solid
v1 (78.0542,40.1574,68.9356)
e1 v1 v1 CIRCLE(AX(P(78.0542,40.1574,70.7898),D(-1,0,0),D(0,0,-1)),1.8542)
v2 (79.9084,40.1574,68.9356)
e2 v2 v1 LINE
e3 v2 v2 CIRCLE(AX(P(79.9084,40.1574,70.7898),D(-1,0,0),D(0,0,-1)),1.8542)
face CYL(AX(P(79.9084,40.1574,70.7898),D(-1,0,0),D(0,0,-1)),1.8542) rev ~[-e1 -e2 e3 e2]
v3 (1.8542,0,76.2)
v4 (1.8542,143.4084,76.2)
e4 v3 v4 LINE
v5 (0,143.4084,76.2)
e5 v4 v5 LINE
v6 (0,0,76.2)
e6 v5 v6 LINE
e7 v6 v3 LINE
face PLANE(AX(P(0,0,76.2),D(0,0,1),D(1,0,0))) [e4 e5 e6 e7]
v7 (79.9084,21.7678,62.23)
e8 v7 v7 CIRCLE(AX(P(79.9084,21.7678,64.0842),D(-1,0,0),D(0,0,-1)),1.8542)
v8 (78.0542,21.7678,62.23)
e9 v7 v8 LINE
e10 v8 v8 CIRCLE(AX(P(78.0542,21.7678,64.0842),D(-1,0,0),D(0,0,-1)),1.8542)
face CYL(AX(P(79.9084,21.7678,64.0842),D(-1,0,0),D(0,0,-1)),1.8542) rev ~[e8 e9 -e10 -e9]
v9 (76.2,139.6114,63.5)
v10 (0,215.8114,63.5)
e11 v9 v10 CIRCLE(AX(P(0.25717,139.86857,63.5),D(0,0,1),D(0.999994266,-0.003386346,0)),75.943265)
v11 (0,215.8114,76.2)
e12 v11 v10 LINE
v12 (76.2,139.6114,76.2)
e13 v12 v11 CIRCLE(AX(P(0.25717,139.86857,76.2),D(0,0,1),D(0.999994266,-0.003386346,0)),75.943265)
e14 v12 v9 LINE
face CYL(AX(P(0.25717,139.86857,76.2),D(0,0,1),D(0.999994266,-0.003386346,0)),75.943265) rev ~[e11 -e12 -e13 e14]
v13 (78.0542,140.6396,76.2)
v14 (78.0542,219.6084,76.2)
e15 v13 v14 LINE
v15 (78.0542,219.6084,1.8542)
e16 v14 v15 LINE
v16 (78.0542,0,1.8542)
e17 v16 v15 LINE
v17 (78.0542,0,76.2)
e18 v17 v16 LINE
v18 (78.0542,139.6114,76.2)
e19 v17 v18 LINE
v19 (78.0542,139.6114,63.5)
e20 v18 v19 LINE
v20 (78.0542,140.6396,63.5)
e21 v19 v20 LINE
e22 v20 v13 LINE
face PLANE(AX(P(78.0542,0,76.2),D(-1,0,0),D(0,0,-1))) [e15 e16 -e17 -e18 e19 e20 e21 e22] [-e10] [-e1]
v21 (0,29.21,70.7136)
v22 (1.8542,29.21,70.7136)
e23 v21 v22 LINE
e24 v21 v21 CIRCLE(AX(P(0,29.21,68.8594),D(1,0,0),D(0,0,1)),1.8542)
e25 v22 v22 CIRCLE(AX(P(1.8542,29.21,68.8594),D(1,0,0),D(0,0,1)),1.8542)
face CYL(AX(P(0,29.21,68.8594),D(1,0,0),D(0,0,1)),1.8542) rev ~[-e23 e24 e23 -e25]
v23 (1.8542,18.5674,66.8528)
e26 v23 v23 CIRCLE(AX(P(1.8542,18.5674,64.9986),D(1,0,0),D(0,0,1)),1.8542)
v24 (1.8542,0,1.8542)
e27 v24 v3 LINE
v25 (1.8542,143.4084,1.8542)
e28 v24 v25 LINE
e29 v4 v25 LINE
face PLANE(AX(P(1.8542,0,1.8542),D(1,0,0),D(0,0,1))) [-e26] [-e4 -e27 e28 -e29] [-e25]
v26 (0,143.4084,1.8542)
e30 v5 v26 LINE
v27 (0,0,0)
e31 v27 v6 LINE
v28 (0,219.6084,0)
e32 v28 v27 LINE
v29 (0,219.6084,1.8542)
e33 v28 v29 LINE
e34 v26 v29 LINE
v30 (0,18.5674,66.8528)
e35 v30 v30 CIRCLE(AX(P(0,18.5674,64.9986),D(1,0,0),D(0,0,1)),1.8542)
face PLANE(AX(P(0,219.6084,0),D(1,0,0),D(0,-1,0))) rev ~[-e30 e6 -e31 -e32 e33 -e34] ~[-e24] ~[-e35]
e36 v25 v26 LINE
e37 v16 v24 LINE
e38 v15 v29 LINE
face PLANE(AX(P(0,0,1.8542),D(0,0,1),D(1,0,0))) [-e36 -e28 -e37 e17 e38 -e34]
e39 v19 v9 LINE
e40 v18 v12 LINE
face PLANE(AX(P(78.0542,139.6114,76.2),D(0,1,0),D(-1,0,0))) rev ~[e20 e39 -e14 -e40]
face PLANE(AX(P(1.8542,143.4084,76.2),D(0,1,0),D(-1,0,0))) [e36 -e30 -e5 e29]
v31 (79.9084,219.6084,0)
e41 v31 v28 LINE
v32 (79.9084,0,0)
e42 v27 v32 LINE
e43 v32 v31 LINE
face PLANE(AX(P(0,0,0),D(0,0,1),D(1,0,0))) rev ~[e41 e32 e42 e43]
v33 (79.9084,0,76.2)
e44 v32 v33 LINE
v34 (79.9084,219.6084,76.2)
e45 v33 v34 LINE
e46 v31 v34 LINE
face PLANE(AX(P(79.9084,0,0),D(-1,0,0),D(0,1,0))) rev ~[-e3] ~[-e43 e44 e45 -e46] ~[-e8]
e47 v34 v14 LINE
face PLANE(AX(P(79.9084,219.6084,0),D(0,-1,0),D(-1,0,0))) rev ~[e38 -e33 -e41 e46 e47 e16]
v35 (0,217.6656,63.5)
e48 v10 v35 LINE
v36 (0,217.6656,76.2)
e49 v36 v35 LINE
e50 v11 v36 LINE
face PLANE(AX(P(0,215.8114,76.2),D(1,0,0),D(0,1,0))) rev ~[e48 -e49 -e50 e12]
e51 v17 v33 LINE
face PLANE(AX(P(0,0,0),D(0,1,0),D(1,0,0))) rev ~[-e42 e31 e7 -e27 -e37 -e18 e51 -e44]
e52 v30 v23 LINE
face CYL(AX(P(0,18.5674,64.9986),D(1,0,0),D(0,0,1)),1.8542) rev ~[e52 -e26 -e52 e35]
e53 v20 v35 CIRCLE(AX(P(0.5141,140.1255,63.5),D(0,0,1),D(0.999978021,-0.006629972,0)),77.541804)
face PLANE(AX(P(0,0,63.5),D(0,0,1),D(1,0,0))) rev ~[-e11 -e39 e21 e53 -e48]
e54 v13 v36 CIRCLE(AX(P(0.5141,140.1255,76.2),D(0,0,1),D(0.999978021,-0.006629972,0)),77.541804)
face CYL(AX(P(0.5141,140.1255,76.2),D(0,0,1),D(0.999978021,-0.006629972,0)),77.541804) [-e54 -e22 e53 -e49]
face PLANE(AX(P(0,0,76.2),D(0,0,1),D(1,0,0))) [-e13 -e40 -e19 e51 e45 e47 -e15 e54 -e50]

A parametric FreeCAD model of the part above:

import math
import FreeCAD as App
import Part
import Sketcher

V = App.Vector
Q = App.Units.Quantity

doc = App.newDocument("Part")
body = doc.addObject("PartDesign::Body", "Body")

sketch1 = body.newObject("Sketcher::SketchObject", "Sketch")
sketch1.AttachmentSupport = (doc.getObject("XY_Plane"), [""])
sketch1.MapMode = "FlatFace"
sketch1.addGeometry(Part.LineSegment(V(0, 219.6084, 0), V(0, 0, 0)), False)
sketch1.addGeometry(Part.LineSegment(V(0, 0, 0), V(79.9084, 0, 0)), False)
sketch1.addGeometry(Part.LineSegment(V(79.9084, 0, 0), V(79.9084, 219.6084, 0)), False)
sketch1.addGeometry(Part.LineSegment(V(79.9084, 219.6084, 0), V(0, 219.6084, 0)), False)
sketch1.addConstraint(Sketcher.Constraint("Coincident", 0, 2, 1, 1))
sketch1.addConstraint(Sketcher.Constraint("Coincident", 1, 2, 2, 1))
sketch1.addConstraint(Sketcher.Constraint("Coincident", 2, 2, 3, 1))
sketch1.addConstraint(Sketcher.Constraint("Coincident", 3, 2, 0, 1))
sketch1.addConstraint(Sketcher.Constraint("Vertical", 0))
sketch1.addConstraint(Sketcher.Constraint("Horizontal", 1))
sketch1.addConstraint(Sketcher.Constraint("Vertical", 2))
sketch1.addConstraint(Sketcher.Constraint("Horizontal", 3))
sketch1.addConstraint(Sketcher.Constraint("Coincident", 0, 2, -1, 1))
sketch1.addConstraint(Sketcher.Constraint("DistanceX", 1, 1, 1, 2, Q("3.146 in")))
sketch1.addConstraint(Sketcher.Constraint("DistanceY", 0, 2, 0, 1, Q("8.646 in")))
pad1 = body.newObject("PartDesign::Pad", "Pad")
pad1.Profile = sketch1
pad1.Length = Q("3 in")

sketch2 = body.newObject("Sketcher::SketchObject", "Sketch001")
sketch2.AttachmentSupport = (doc.getObject("XZ_Plane"), [""])
sketch2.MapMode = "FlatFace"
sketch2.addGeometry(Part.LineSegment(V(78.0542, 76.2, 0), V(1.8542, 76.2, 0)), False)
sketch2.addGeometry(Part.LineSegment(V(1.8542, 76.2, 0), V(1.8542, 1.8542, 0)), False)
sketch2.addGeometry(Part.LineSegment(V(1.8542, 1.8542, 0), V(78.0542, 1.8542, 0)), False)
sketch2.addGeometry(Part.LineSegment(V(78.0542, 1.8542, 0), V(78.0542, 76.2, 0)), False)
sketch2.addConstraint(Sketcher.Constraint("Coincident", 0, 2, 1, 1))
sketch2.addConstraint(Sketcher.Constraint("Coincident", 1, 2, 2, 1))
sketch2.addConstraint(Sketcher.Constraint("Coincident", 2, 2, 3, 1))
sketch2.addConstraint(Sketcher.Constraint("Coincident", 3, 2, 0, 1))
sketch2.addConstraint(Sketcher.Constraint("Horizontal", 0))
sketch2.addConstraint(Sketcher.Constraint("Vertical", 1))
sketch2.addConstraint(Sketcher.Constraint("Horizontal", 2))
sketch2.addConstraint(Sketcher.Constraint("Vertical", 3))
sketch2.addConstraint(Sketcher.Constraint("DistanceX", 0, 2, 0, 1, Q("3 in")))
sketch2.addConstraint(Sketcher.Constraint("DistanceY", -1, 1, 0, 2, Q("3 in")))
sketch2.addConstraint(Sketcher.Constraint("DistanceX", -1, 1, 0, 2, Q("0.073 in")))
sketch2.addConstraint(Sketcher.Constraint("DistanceY", -1, 1, 1, 2, Q("0.073 in")))
pocket1 = body.newObject("PartDesign::Pocket", "Pocket")
pocket1.Profile = sketch2
pocket1.Length = Q("9 in")

sketch3 = body.newObject("Sketcher::SketchObject", "Sketch002")
sketch3.AttachmentSupport = (doc.getObject("XY_Plane"), [""])
sketch3.MapMode = "FlatFace"
sketch3.AttachmentOffset = App.Placement(V(0, 0, 3 * 25.4), App.Rotation())
sketch3.addGeometry(Part.LineSegment(V(0, 143.4084, 0), V(1.8542, 143.4084, 0)), False)
sketch3.addGeometry(Part.LineSegment(V(1.8542, 143.4084, 0), V(1.8542, 219.6084, 0)), False)
sketch3.addGeometry(Part.LineSegment(V(1.8542, 219.6084, 0), V(0, 219.6084, 0)), False)
sketch3.addGeometry(Part.LineSegment(V(0, 219.6084, 0), V(0, 143.4084, 0)), False)
sketch3.addConstraint(Sketcher.Constraint("Coincident", 0, 2, 1, 1))
sketch3.addConstraint(Sketcher.Constraint("Coincident", 1, 2, 2, 1))
sketch3.addConstraint(Sketcher.Constraint("Coincident", 2, 2, 3, 1))
sketch3.addConstraint(Sketcher.Constraint("Coincident", 3, 2, 0, 1))
sketch3.addConstraint(Sketcher.Constraint("Horizontal", 0))
sketch3.addConstraint(Sketcher.Constraint("Vertical", 1))
sketch3.addConstraint(Sketcher.Constraint("Horizontal", 2))
sketch3.addConstraint(Sketcher.Constraint("Vertical", 3))
sketch3.addConstraint(Sketcher.Constraint("PointOnObject", 2, 2, -2))
sketch3.addConstraint(Sketcher.Constraint("DistanceY", 1, 1, 1, 2, Q("3 in")))
sketch3.addConstraint(Sketcher.Constraint("DistanceX", 0, 1, 0, 2, Q("0.073 in")))
sketch3.addConstraint(Sketcher.Constraint("DistanceY", -1, 1, 0, 2, Q("5.646 in")))
pocket2 = body.newObject("PartDesign::Pocket", "Pocket001")
pocket2.Profile = sketch3
pocket2.Length = Q("2.927 in")

sketch4 = body.newObject("Sketcher::SketchObject", "Sketch003")
sketch4.AttachmentSupport = (doc.getObject("XY_Plane"), [""])
sketch4.MapMode = "FlatFace"
sketch4.AttachmentOffset = App.Placement(V(0, 0, 3 * 25.4), App.Rotation())
sketch4.addGeometry(Part.LineSegment(V(0, 217.6656, 0), V(0, 215.8114, 0)), False)
sketch4.addGeometry(Part.ArcOfCircle(Part.Circle(V(0.257, 139.8685, 0), V(0, 0, 1), 75.943435), math.radians(-0.19397), math.radians(90.193895)), False)
sketch4.addGeometry(Part.LineSegment(V(76.2, 139.6114, 0), V(78.0542, 139.6114, 0)), False)
sketch4.addGeometry(Part.ArcOfCircle(Part.Circle(V(0.5141, 140.1255, 0), V(0, 0, 1), 77.541804), math.radians(-0.379872), math.radians(90.379872)), False)
sketch4.addConstraint(Sketcher.Constraint("Coincident", 0, 2, 1, 2))
sketch4.addConstraint(Sketcher.Constraint("Coincident", 1, 1, 2, 1))
sketch4.addConstraint(Sketcher.Constraint("Coincident", 2, 2, 3, 1))
sketch4.addConstraint(Sketcher.Constraint("Coincident", 3, 2, 0, 1))
sketch4.addConstraint(Sketcher.Constraint("Vertical", 0))
sketch4.addConstraint(Sketcher.Constraint("Horizontal", 2))
sketch4.addConstraint(Sketcher.Constraint("PointOnObject", 0, 2, -2))
sketch4.addConstraint(Sketcher.Constraint("Equal", 2, 0))
sketch4.addConstraint(Sketcher.Constraint("DistanceX", 2, 1, 2, 2, Q("0.073 in")))
sketch4.addConstraint(Sketcher.Constraint("DistanceX", -1, 1, 1, 1, Q("3 in")))
sketch4.addConstraint(Sketcher.Constraint("DistanceY", 1, 1, 0, 2, Q("3 in")))
sketch4.addConstraint(Sketcher.Constraint("Radius", 1, Q("2.9899 in")))
sketch4.addConstraint(Sketcher.Constraint("Radius", 3, 77.5418))
sketch4.addConstraint(Sketcher.Constraint("DistanceY", -1, 1, 0, 2, Q("8.4965 in")))
pad2 = body.newObject("PartDesign::Pad", "Pad001")
pad2.Profile = sketch4
pad2.Length = Q("0.5 in")
pad2.Reversed = True

sketch5 = body.newObject("Sketcher::SketchObject", "Sketch004")
sketch5.AttachmentSupport = (doc.getObject("YZ_Plane"), [""])
sketch5.MapMode = "FlatFace"
sketch5.addGeometry(Part.Circle(V(29.21, 68.8594, 0), V(0, 0, 1), 1.8542), False)
sketch5.addGeometry(Part.Circle(V(18.5674, 64.9986, 0), V(0, 0, 1), 1.8542), False)
sketch5.addConstraint(Sketcher.Constraint("Equal", 0, 1))
sketch5.addConstraint(Sketcher.Constraint("Diameter", 0, Q("0.146 in")))
sketch5.addConstraint(Sketcher.Constraint("DistanceX", -1, 1, 0, 3, Q("1.15 in")))
sketch5.addConstraint(Sketcher.Constraint("DistanceY", -1, 1, 0, 3, Q("2.711 in")))
sketch5.addConstraint(Sketcher.Constraint("DistanceX", -1, 1, 1, 3, Q("0.731 in")))
sketch5.addConstraint(Sketcher.Constraint("DistanceY", -1, 1, 1, 3, Q("2.559 in")))
doc.recompute()
hole = body.newObject("PartDesign::Hole", "Hole")
hole.Profile = sketch5
hole.ThreadType = "None"
hole.Diameter = Q("0.146 in")
hole.DepthType = "Dimension"
hole.Depth = Q("0.073 in")
hole.DrillPoint = "Flat"
hole.Reversed = True

sketch6 = body.newObject("Sketcher::SketchObject", "Sketch005")
sketch6.AttachmentSupport = (doc.getObject("YZ_Plane"), [""])
sketch6.MapMode = "FlatFace"
sketch6.AttachmentOffset = App.Placement(V(0, 0, 3.146 * 25.4), App.Rotation())
sketch6.addGeometry(Part.Circle(V(40.1574, 70.7898, 0), V(0, 0, 1), 1.8542), False)
sketch6.addGeometry(Part.Circle(V(21.7678, 64.0842, 0), V(0, 0, 1), 1.8542), False)
sketch6.addConstraint(Sketcher.Constraint("Equal", 0, 1))
sketch6.addConstraint(Sketcher.Constraint("Diameter", 0, Q("0.146 in")))
sketch6.addConstraint(Sketcher.Constraint("DistanceX", -1, 1, 0, 3, Q("1.581 in")))
sketch6.addConstraint(Sketcher.Constraint("DistanceY", -1, 1, 0, 3, Q("2.787 in")))
sketch6.addConstraint(Sketcher.Constraint("DistanceX", -1, 1, 1, 3, Q("0.857 in")))
sketch6.addConstraint(Sketcher.Constraint("DistanceY", -1, 1, 1, 3, Q("2.523 in")))
doc.recompute()
hole2 = body.newObject("PartDesign::Hole", "Hole001")
hole2.Profile = sketch6
hole2.ThreadType = "None"
hole2.Diameter = Q("0.146 in")
hole2.DepthType = "Dimension"
hole2.Depth = Q("0.073 in")
hole2.DrillPoint = "Flat"

doc.recompute()
